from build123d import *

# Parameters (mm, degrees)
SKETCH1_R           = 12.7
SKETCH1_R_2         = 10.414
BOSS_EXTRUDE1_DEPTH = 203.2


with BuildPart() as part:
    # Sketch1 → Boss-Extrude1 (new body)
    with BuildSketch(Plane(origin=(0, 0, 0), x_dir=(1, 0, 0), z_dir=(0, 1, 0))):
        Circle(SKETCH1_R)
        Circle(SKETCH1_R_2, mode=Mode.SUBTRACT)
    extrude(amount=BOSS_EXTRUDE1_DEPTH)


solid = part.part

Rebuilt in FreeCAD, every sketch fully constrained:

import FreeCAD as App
import Part
import Sketcher
Q = App.Units.Quantity

doc = App.newDocument("Part")
body = doc.addObject("PartDesign::Body", "Body")

# Sketch on XZ plane
sketch1 = body.newObject("Sketcher::SketchObject", "Sketch")
sketch1.AttachmentSupport = (doc.getObject("XZ_Plane"), [""])
sketch1.MapMode = "FlatFace"
sketch1.addGeometry(Part.Circle(App.Vector(0, 0, 0), App.Vector(0, 0, 1), 13), False)
sketch1.addGeometry(Part.Circle(App.Vector(0, 0, 0), App.Vector(0, 0, 1), 10), False)
sketch1.addConstraint(Sketcher.Constraint("Coincident", 0, 3, -1, 1))
sketch1.addConstraint(Sketcher.Constraint("Coincident", 1, 3, -1, 1))
sketch1.addConstraint(Sketcher.Constraint("Diameter", 0, Q("1 in")))
sketch1.addConstraint(Sketcher.Constraint("Diameter", 1, Q("0.82 in")))
pad1 = body.newObject("PartDesign::Pad", "Pad")
pad1.Profile = sketch1
pad1.Length = Q("8 in")
pad1.Reversed = True

doc.recompute()
